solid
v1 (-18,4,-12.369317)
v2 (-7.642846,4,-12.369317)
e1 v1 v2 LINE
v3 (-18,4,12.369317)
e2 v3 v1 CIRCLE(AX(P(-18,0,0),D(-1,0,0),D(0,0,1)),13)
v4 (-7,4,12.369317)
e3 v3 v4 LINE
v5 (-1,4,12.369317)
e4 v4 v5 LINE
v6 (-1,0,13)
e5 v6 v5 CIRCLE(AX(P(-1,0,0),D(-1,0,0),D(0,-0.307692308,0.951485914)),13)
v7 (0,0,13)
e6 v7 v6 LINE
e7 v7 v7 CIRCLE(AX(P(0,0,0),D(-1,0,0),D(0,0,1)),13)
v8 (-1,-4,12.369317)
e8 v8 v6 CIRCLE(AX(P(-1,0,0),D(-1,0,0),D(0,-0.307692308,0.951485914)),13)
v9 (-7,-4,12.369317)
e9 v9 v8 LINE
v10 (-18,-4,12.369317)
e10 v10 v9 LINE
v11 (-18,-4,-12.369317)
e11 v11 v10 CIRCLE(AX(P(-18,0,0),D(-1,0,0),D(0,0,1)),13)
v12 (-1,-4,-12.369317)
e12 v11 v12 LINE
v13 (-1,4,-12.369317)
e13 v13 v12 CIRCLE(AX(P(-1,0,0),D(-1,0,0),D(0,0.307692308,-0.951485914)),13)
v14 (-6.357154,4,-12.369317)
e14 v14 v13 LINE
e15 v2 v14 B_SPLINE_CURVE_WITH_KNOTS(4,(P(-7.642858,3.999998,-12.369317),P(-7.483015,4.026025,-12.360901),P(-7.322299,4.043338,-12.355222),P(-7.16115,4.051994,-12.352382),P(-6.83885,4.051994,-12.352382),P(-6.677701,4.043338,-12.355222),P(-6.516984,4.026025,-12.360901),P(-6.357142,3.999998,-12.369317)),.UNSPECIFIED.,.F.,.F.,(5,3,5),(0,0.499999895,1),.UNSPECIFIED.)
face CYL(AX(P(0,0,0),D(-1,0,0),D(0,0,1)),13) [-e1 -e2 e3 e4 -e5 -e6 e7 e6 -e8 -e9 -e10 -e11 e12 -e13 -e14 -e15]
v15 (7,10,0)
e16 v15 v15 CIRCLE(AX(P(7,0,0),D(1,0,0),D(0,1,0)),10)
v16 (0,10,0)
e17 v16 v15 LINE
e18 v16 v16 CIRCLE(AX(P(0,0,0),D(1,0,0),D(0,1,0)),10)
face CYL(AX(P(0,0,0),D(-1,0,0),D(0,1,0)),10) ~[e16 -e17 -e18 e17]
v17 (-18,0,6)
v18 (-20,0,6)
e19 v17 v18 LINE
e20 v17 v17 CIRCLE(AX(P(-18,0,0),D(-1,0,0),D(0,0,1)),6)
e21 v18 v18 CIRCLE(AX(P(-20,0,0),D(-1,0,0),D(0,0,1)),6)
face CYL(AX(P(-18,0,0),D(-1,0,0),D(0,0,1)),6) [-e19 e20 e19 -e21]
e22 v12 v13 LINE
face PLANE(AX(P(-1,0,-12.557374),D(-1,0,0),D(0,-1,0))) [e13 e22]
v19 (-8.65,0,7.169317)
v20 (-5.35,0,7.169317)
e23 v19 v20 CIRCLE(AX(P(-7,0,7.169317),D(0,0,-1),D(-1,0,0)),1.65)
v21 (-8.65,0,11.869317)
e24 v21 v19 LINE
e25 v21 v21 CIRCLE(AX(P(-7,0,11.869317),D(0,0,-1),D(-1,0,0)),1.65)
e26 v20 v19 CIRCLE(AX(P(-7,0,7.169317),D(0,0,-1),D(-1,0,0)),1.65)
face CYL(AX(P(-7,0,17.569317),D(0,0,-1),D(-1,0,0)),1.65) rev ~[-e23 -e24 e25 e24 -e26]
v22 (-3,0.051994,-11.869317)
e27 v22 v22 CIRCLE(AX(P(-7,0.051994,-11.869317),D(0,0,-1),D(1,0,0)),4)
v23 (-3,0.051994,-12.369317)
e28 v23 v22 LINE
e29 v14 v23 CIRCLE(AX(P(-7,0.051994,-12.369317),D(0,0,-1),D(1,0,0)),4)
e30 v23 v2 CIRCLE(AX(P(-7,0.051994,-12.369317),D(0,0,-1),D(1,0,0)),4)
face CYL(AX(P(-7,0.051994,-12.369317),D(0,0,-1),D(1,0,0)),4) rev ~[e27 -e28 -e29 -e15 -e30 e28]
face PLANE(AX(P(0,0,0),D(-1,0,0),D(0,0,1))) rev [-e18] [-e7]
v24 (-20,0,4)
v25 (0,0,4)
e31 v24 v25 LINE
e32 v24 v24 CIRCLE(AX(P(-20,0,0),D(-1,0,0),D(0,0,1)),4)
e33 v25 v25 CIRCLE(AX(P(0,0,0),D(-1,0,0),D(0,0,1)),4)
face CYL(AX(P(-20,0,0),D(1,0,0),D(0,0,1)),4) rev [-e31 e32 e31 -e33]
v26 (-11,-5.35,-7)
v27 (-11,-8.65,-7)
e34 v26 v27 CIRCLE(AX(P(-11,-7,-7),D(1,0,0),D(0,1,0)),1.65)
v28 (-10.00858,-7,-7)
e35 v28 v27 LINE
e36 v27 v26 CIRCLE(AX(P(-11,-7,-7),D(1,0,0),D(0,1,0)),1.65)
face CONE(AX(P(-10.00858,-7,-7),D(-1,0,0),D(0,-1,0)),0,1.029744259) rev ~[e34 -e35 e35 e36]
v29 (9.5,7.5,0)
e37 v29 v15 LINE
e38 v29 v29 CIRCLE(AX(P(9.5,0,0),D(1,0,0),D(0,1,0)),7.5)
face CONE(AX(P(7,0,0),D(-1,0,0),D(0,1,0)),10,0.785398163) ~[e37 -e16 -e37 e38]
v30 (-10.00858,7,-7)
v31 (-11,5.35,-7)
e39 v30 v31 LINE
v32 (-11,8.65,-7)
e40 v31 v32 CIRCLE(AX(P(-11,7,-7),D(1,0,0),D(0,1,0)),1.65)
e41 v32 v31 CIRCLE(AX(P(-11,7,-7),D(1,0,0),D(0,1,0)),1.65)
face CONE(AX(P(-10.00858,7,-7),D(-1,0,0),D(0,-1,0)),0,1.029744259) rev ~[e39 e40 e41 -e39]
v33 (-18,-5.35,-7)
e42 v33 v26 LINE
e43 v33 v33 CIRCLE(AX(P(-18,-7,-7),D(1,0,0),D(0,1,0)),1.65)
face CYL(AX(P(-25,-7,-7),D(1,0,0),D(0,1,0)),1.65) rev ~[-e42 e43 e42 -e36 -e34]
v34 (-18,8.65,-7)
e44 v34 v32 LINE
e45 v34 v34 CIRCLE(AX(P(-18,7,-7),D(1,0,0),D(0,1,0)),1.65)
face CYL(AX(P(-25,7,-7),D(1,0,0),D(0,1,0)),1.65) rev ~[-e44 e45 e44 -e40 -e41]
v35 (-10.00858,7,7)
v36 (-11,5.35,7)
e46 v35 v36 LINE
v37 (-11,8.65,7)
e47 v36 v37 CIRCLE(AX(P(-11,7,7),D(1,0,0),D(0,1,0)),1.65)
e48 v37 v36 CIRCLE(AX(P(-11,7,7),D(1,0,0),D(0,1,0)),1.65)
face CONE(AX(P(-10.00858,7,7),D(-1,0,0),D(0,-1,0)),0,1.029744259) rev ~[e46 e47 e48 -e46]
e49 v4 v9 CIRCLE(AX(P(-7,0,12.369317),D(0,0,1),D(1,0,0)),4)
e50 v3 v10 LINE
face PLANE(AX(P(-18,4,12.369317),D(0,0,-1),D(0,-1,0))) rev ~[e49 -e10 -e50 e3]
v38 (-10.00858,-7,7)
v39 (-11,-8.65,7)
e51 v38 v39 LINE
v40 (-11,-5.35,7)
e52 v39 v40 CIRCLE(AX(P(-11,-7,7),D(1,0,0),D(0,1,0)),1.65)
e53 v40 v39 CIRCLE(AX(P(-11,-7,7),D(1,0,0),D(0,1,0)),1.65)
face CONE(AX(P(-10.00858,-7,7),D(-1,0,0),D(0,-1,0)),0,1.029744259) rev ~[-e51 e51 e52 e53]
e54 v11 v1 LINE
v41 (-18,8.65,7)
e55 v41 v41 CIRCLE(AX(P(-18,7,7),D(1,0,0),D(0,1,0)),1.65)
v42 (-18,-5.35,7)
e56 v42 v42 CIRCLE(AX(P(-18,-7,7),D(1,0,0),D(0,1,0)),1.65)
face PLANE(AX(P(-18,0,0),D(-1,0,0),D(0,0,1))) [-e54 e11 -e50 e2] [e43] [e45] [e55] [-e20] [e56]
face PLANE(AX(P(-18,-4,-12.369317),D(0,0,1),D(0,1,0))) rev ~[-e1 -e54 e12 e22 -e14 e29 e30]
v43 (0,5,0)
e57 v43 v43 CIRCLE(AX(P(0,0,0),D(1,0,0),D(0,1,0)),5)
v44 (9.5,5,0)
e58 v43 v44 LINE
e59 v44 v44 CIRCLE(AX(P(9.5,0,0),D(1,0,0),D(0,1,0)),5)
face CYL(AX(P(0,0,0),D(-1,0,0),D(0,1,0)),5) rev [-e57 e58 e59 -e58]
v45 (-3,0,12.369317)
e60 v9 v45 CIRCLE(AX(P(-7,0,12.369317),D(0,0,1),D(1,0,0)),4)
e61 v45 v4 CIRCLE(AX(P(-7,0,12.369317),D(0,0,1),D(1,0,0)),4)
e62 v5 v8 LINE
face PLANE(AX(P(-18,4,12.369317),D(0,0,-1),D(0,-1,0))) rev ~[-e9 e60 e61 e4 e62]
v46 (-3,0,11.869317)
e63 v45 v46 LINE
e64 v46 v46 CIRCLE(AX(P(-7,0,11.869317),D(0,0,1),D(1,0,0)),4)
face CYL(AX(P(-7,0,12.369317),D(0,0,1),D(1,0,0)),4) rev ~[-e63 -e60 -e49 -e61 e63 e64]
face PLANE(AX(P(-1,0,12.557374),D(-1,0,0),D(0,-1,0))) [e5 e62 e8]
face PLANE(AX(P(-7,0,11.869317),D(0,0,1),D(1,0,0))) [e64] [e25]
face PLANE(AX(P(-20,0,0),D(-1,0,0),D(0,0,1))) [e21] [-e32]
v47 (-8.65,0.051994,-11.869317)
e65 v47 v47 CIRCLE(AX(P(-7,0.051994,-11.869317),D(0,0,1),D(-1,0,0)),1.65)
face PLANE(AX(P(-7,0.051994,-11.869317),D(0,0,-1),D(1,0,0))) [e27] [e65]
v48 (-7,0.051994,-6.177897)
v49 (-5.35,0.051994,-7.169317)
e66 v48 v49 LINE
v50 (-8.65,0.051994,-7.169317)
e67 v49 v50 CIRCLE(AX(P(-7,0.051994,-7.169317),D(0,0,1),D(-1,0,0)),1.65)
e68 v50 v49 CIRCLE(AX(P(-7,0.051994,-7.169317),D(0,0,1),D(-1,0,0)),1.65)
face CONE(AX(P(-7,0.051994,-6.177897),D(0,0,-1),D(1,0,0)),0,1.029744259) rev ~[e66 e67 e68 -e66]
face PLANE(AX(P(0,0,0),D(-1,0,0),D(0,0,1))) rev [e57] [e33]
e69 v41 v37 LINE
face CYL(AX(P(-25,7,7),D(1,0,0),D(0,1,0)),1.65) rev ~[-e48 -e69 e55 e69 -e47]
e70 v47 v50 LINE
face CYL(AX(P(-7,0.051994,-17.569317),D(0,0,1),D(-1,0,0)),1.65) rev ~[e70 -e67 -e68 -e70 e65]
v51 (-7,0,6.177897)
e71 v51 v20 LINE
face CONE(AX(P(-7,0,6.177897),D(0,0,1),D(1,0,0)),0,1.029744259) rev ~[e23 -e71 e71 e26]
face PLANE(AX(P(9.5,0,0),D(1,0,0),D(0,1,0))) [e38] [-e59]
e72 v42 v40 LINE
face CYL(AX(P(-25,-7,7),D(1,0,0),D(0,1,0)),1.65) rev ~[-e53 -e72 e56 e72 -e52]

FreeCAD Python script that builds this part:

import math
import FreeCAD as App
import Part
import Sketcher
from FreeCAD import Vector
Q = App.Units.Quantity


def edges_at(feature, points):
    """Names of the edges that pass closest to the given points."""
    edges = feature.Shape.Edges
    near = lambda p: min(range(len(edges)), key=lambda i: edges[i].distToShape(Part.Vertex(*p))[0])
    return sorted({f"Edge{near(p) + 1}" for p in points})

doc = App.newDocument("Part")
body = doc.addObject("PartDesign::Body", "Body")

# Sketch on XZ plane
sketch1 = body.newObject("Sketcher::SketchObject", "Sketch")
sketch1.AttachmentSupport = (doc.getObject("XZ_Plane"), [""])
sketch1.MapMode = "FlatFace"
sketch1.addGeometry(Part.LineSegment(Vector(-20, 4, 0), Vector(0, 4, 0)), False)
sketch1.addGeometry(Part.LineSegment(Vector(0, 4, 0), Vector(0, 13, 0)), False)
sketch1.addGeometry(Part.LineSegment(Vector(0, 13, 0), Vector(-18, 13, 0)), False)
sketch1.addGeometry(Part.LineSegment(Vector(-18, 13, 0), Vector(-18, 6, 0)), False)
sketch1.addGeometry(Part.LineSegment(Vector(-18, 6, 0), Vector(-20, 6, 0)), False)
sketch1.addGeometry(Part.LineSegment(Vector(-20, 6, 0), Vector(-20, 4, 0)), False)
sketch1.addConstraint(Sketcher.Constraint("Coincident", 0, 2, 1, 1))
sketch1.addConstraint(Sketcher.Constraint("Coincident", 1, 2, 2, 1))
sketch1.addConstraint(Sketcher.Constraint("Coincident", 2, 2, 3, 1))
sketch1.addConstraint(Sketcher.Constraint("Coincident", 3, 2, 4, 1))
sketch1.addConstraint(Sketcher.Constraint("Coincident", 4, 2, 5, 1))
sketch1.addConstraint(Sketcher.Constraint("Coincident", 5, 2, 0, 1))
sketch1.addConstraint(Sketcher.Constraint("Horizontal", 0))
sketch1.addConstraint(Sketcher.Constraint("Vertical", 1))
sketch1.addConstraint(Sketcher.Constraint("Horizontal", 2))
sketch1.addConstraint(Sketcher.Constraint("Vertical", 3))
sketch1.addConstraint(Sketcher.Constraint("Horizontal", 4))
sketch1.addConstraint(Sketcher.Constraint("Vertical", 5))
sketch1.addConstraint(Sketcher.Constraint("PointOnObject", 0, 2, -2))
sketch1.addConstraint(Sketcher.Constraint("Equal", 4, 5))
sketch1.addConstraint(Sketcher.Constraint("DistanceX", 0, 1, 0, 2, Q("20 mm")))
sketch1.addConstraint(Sketcher.Constraint("DistanceX", 2, 2, 2, 1, Q("18 mm")))
sketch1.addConstraint(Sketcher.Constraint("DistanceY", 1, 1, 1, 2, Q("9 mm")))
sketch1.addConstraint(Sketcher.Constraint("DistanceY", -1, 1, 0, 2, Q("4 mm")))
revolution = body.newObject("PartDesign::Revolution", "Revolution")
revolution.Profile = sketch1
revolution.ReferenceAxis = (sketch1, ["H_Axis"])
revolution.Angle = 360

# Sketch on YZ plane
sketch2 = body.newObject("Sketcher::SketchObject", "Sketch001")
sketch2.AttachmentSupport = (doc.getObject("YZ_Plane"), [""])
sketch2.MapMode = "FlatFace"
sketch2.AttachmentOffset = App.Placement(Vector(0, 0, -18), App.Rotation())
sketch2.addGeometry(Part.Circle(Vector(7, 7, 0), Vector(0, 0, 1), 1.6), False)
sketch2.addGeometry(Part.Circle(Vector(-7, 7, 0), Vector(0, 0, 1), 1.6), False)
sketch2.addGeometry(Part.Circle(Vector(7, -7, 0), Vector(0, 0, 1), 1.6), False)
sketch2.addGeometry(Part.Circle(Vector(-7, -7, 0), Vector(0, 0, 1), 1.6), False)
sketch2.addConstraint(Sketcher.Constraint("Equal", 0, 1))
sketch2.addConstraint(Sketcher.Constraint("Equal", 1, 2))
sketch2.addConstraint(Sketcher.Constraint("Equal", 2, 3))
sketch2.addConstraint(Sketcher.Constraint("Symmetric", 1, 3, 2, 3, -1, 1))
sketch2.addConstraint(Sketcher.Constraint("Symmetric", 0, 3, 3, 3, -1, 1))
sketch2.addConstraint(Sketcher.Constraint("Symmetric", 0, 3, 1, 3, -2))
sketch2.addConstraint(Sketcher.Constraint("Diameter", 0, Q("3.3 mm")))
sketch2.addConstraint(Sketcher.Constraint("DistanceX", -1, 1, 0, 3, Q("7 mm")))
sketch2.addConstraint(Sketcher.Constraint("DistanceY", -1, 1, 0, 3, Q("7 mm")))
doc.recompute()
hole = body.newObject("PartDesign::Hole", "Hole")
hole.Profile = sketch2
hole.ThreadType = "None"
hole.Diameter = 3.3
hole.DepthType = "Dimension"
hole.Depth = 7
hole.DrillPoint = "Angled"
hole.DrillPointAngle = 118
hole.Reversed = True

# Sketch on YZ plane
sketch3 = body.newObject("Sketcher::SketchObject", "Sketch002")
sketch3.AttachmentSupport = (doc.getObject("YZ_Plane"), [""])
sketch3.MapMode = "FlatFace"
sketch3.addGeometry(Part.Circle(Vector(0, 0, 0), Vector(0, 0, 1), 10), False)
sketch3.addGeometry(Part.Circle(Vector(0, 0, 0), Vector(0, 0, 1), 5), False)
sketch3.addConstraint(Sketcher.Constraint("Coincident", 0, 3, -1, 1))
sketch3.addConstraint(Sketcher.Constraint("Coincident", 1, 3, -1, 1))
sketch3.addConstraint(Sketcher.Constraint("Diameter", 0, Q("20 mm")))
sketch3.addConstraint(Sketcher.Constraint("Diameter", 1, Q("10 mm")))
pad1 = body.newObject("PartDesign::Pad", "Pad")
pad1.Profile = sketch3
pad1.Length = 9.5
doc.recompute()

chamfer = body.newObject("PartDesign::Chamfer", "Chamfer")
chamfer.Base = (pad1, edges_at(pad1, [(9.5, -10, 0)]))
chamfer.Size = 2.5

# Sketch on YZ plane
sketch4 = body.newObject("Sketcher::SketchObject", "Sketch003")
sketch4.AttachmentSupport = (doc.getObject("YZ_Plane"), [""])
sketch4.MapMode = "FlatFace"
sketch4.AttachmentOffset = App.Placement(Vector(0, 0, -18), App.Rotation())
sketch4.addGeometry(Part.LineSegment(Vector(4, 12, 0), Vector(-4, 12, 0)), False)
sketch4.addGeometry(Part.ArcOfCircle(Part.Circle(Vector(0, 0, 0), Vector(0, 0, 1), 13), math.radians(72), math.radians(108)), False)
sketch4.addGeometry(Part.LineSegment(Vector(-4, -12, 0), Vector(4, -12, 0)), False)
sketch4.addGeometry(Part.ArcOfCircle(Part.Circle(Vector(0, 0, 0), Vector(0, 0, 1), 13), math.radians(-108), math.radians(-72)), False)
sketch4.addConstraint(Sketcher.Constraint("Coincident", 0, 1, 1, 1))
sketch4.addConstraint(Sketcher.Constraint("Coincident", 1, 2, 0, 2))
sketch4.addConstraint(Sketcher.Constraint("Coincident", 2, 1, 3, 1))
sketch4.addConstraint(Sketcher.Constraint("Coincident", 3, 2, 2, 2))
sketch4.addConstraint(Sketcher.Constraint("Horizontal", 0))
sketch4.addConstraint(Sketcher.Constraint("Horizontal", 2))
sketch4.addConstraint(Sketcher.Constraint("Coincident", 1, 3, -1, 1))
sketch4.addConstraint(Sketcher.Constraint("Coincident", 3, 3, -1, 1))
sketch4.addConstraint(Sketcher.Constraint("Equal", 1, 3))
sketch4.addConstraint(Sketcher.Constraint("Vertical", 1, 2, 2, 1))
sketch4.addConstraint(Sketcher.Constraint("Radius", 1, Q("13 mm")))
sketch4.addConstraint(Sketcher.Constraint("DistanceX", 0, 2, 0, 1, Q("8 mm")))
pocket1 = body.newObject("PartDesign::Pocket", "Pocket")
pocket1.Profile = sketch4
pocket1.Length = 17
pocket1.Reversed = True

# Sketch on XY plane
sketch5 = body.newObject("Sketcher::SketchObject", "Sketch004")
sketch5.AttachmentSupport = (doc.getObject("XY_Plane"), [""])
sketch5.MapMode = "FlatFace"
sketch5.AttachmentOffset = App.Placement(Vector(0, 0, 12.369317), App.Rotation())
sketch5.addGeometry(Part.Circle(Vector(-7, 0, 0), Vector(0, 0, 1), 1.6), False)
sketch5.addConstraint(Sketcher.Constraint("PointOnObject", 0, 3, -1))
sketch5.addConstraint(Sketcher.Constraint("Diameter", 0, Q("3.3 mm")))
sketch5.addConstraint(Sketcher.Constraint("DistanceX", 0, 3, -1, 1, Q("7 mm")))
doc.recompute()
hole2 = body.newObject("PartDesign::Hole", "Hole001")
hole2.Profile = sketch5
hole2.ThreadType = "None"
hole2.Diameter = 3.3
hole2.DepthType = "Dimension"
hole2.Depth = 5.2
hole2.DrillPoint = "Angled"
hole2.DrillPointAngle = 118

# Sketch on XY plane
sketch6 = body.newObject("Sketcher::SketchObject", "Sketch005")
sketch6.AttachmentSupport = (doc.getObject("XY_Plane"), [""])
sketch6.MapMode = "FlatFace"
sketch6.AttachmentOffset = App.Placement(Vector(0, 0, 12.369317), App.Rotation())
sketch6.addGeometry(Part.Circle(Vector(-7, 0, 0), Vector(0, 0, 1), 4), False)
sketch6.addConstraint(Sketcher.Constraint("PointOnObject", 0, 3, -1))
sketch6.addConstraint(Sketcher.Constraint("Diameter", 0, Q("8 mm")))
sketch6.addConstraint(Sketcher.Constraint("DistanceX", 0, 3, -1, 1, Q("7 mm")))
pocket2 = body.newObject("PartDesign::Pocket", "Pocket001")
pocket2.Profile = sketch6
pocket2.Length = 0.5

# Sketch on XY plane
sketch7 = body.newObject("Sketcher::SketchObject", "Sketch006")
sketch7.AttachmentSupport = (doc.getObject("XY_Plane"), [""])
sketch7.MapMode = "FlatFace"
sketch7.AttachmentOffset = App.Placement(Vector(0, 0, -12.369317), App.Rotation())
sketch7.addGeometry(Part.Circle(Vector(-7, 0.1, 0), Vector(0, 0, 1), 1.6), False)
sketch7.addConstraint(Sketcher.Constraint("Diameter", 0, Q("3.3 mm")))
sketch7.addConstraint(Sketcher.Constraint("DistanceX", 0, 3, -1, 1, Q("7 mm")))
sketch7.addConstraint(Sketcher.Constraint("DistanceY", -1, 1, 0, 3, Q("0.051994 mm")))
doc.recompute()
hole3 = body.newObject("PartDesign::Hole", "Hole002")
hole3.Profile = sketch7
hole3.ThreadType = "None"
hole3.Diameter = 3.3
hole3.DepthType = "Dimension"
hole3.Depth = 5.2
hole3.DrillPoint = "Angled"
hole3.DrillPointAngle = 118
hole3.Reversed = True

# Sketch on XY plane
sketch8 = body.newObject("Sketcher::SketchObject", "Sketch007")
sketch8.AttachmentSupport = (doc.getObject("XY_Plane"), [""])
sketch8.MapMode = "FlatFace"
sketch8.AttachmentOffset = App.Placement(Vector(0, 0, -12.369317), App.Rotation())
sketch8.addGeometry(Part.Circle(Vector(-7, 0.1, 0), Vector(0, 0, 1), 4), False)
sketch8.addConstraint(Sketcher.Constraint("Diameter", 0, Q("8 mm")))
sketch8.addConstraint(Sketcher.Constraint("DistanceX", 0, 3, -1, 1, Q("7 mm")))
sketch8.addConstraint(Sketcher.Constraint("DistanceY", -1, 1, 0, 3, Q("0.051994 mm")))
pocket3 = body.newObject("PartDesign::Pocket", "Pocket002")
pocket3.Profile = sketch8
pocket3.Length = 0.5
pocket3.Reversed = True

doc.recompute()
